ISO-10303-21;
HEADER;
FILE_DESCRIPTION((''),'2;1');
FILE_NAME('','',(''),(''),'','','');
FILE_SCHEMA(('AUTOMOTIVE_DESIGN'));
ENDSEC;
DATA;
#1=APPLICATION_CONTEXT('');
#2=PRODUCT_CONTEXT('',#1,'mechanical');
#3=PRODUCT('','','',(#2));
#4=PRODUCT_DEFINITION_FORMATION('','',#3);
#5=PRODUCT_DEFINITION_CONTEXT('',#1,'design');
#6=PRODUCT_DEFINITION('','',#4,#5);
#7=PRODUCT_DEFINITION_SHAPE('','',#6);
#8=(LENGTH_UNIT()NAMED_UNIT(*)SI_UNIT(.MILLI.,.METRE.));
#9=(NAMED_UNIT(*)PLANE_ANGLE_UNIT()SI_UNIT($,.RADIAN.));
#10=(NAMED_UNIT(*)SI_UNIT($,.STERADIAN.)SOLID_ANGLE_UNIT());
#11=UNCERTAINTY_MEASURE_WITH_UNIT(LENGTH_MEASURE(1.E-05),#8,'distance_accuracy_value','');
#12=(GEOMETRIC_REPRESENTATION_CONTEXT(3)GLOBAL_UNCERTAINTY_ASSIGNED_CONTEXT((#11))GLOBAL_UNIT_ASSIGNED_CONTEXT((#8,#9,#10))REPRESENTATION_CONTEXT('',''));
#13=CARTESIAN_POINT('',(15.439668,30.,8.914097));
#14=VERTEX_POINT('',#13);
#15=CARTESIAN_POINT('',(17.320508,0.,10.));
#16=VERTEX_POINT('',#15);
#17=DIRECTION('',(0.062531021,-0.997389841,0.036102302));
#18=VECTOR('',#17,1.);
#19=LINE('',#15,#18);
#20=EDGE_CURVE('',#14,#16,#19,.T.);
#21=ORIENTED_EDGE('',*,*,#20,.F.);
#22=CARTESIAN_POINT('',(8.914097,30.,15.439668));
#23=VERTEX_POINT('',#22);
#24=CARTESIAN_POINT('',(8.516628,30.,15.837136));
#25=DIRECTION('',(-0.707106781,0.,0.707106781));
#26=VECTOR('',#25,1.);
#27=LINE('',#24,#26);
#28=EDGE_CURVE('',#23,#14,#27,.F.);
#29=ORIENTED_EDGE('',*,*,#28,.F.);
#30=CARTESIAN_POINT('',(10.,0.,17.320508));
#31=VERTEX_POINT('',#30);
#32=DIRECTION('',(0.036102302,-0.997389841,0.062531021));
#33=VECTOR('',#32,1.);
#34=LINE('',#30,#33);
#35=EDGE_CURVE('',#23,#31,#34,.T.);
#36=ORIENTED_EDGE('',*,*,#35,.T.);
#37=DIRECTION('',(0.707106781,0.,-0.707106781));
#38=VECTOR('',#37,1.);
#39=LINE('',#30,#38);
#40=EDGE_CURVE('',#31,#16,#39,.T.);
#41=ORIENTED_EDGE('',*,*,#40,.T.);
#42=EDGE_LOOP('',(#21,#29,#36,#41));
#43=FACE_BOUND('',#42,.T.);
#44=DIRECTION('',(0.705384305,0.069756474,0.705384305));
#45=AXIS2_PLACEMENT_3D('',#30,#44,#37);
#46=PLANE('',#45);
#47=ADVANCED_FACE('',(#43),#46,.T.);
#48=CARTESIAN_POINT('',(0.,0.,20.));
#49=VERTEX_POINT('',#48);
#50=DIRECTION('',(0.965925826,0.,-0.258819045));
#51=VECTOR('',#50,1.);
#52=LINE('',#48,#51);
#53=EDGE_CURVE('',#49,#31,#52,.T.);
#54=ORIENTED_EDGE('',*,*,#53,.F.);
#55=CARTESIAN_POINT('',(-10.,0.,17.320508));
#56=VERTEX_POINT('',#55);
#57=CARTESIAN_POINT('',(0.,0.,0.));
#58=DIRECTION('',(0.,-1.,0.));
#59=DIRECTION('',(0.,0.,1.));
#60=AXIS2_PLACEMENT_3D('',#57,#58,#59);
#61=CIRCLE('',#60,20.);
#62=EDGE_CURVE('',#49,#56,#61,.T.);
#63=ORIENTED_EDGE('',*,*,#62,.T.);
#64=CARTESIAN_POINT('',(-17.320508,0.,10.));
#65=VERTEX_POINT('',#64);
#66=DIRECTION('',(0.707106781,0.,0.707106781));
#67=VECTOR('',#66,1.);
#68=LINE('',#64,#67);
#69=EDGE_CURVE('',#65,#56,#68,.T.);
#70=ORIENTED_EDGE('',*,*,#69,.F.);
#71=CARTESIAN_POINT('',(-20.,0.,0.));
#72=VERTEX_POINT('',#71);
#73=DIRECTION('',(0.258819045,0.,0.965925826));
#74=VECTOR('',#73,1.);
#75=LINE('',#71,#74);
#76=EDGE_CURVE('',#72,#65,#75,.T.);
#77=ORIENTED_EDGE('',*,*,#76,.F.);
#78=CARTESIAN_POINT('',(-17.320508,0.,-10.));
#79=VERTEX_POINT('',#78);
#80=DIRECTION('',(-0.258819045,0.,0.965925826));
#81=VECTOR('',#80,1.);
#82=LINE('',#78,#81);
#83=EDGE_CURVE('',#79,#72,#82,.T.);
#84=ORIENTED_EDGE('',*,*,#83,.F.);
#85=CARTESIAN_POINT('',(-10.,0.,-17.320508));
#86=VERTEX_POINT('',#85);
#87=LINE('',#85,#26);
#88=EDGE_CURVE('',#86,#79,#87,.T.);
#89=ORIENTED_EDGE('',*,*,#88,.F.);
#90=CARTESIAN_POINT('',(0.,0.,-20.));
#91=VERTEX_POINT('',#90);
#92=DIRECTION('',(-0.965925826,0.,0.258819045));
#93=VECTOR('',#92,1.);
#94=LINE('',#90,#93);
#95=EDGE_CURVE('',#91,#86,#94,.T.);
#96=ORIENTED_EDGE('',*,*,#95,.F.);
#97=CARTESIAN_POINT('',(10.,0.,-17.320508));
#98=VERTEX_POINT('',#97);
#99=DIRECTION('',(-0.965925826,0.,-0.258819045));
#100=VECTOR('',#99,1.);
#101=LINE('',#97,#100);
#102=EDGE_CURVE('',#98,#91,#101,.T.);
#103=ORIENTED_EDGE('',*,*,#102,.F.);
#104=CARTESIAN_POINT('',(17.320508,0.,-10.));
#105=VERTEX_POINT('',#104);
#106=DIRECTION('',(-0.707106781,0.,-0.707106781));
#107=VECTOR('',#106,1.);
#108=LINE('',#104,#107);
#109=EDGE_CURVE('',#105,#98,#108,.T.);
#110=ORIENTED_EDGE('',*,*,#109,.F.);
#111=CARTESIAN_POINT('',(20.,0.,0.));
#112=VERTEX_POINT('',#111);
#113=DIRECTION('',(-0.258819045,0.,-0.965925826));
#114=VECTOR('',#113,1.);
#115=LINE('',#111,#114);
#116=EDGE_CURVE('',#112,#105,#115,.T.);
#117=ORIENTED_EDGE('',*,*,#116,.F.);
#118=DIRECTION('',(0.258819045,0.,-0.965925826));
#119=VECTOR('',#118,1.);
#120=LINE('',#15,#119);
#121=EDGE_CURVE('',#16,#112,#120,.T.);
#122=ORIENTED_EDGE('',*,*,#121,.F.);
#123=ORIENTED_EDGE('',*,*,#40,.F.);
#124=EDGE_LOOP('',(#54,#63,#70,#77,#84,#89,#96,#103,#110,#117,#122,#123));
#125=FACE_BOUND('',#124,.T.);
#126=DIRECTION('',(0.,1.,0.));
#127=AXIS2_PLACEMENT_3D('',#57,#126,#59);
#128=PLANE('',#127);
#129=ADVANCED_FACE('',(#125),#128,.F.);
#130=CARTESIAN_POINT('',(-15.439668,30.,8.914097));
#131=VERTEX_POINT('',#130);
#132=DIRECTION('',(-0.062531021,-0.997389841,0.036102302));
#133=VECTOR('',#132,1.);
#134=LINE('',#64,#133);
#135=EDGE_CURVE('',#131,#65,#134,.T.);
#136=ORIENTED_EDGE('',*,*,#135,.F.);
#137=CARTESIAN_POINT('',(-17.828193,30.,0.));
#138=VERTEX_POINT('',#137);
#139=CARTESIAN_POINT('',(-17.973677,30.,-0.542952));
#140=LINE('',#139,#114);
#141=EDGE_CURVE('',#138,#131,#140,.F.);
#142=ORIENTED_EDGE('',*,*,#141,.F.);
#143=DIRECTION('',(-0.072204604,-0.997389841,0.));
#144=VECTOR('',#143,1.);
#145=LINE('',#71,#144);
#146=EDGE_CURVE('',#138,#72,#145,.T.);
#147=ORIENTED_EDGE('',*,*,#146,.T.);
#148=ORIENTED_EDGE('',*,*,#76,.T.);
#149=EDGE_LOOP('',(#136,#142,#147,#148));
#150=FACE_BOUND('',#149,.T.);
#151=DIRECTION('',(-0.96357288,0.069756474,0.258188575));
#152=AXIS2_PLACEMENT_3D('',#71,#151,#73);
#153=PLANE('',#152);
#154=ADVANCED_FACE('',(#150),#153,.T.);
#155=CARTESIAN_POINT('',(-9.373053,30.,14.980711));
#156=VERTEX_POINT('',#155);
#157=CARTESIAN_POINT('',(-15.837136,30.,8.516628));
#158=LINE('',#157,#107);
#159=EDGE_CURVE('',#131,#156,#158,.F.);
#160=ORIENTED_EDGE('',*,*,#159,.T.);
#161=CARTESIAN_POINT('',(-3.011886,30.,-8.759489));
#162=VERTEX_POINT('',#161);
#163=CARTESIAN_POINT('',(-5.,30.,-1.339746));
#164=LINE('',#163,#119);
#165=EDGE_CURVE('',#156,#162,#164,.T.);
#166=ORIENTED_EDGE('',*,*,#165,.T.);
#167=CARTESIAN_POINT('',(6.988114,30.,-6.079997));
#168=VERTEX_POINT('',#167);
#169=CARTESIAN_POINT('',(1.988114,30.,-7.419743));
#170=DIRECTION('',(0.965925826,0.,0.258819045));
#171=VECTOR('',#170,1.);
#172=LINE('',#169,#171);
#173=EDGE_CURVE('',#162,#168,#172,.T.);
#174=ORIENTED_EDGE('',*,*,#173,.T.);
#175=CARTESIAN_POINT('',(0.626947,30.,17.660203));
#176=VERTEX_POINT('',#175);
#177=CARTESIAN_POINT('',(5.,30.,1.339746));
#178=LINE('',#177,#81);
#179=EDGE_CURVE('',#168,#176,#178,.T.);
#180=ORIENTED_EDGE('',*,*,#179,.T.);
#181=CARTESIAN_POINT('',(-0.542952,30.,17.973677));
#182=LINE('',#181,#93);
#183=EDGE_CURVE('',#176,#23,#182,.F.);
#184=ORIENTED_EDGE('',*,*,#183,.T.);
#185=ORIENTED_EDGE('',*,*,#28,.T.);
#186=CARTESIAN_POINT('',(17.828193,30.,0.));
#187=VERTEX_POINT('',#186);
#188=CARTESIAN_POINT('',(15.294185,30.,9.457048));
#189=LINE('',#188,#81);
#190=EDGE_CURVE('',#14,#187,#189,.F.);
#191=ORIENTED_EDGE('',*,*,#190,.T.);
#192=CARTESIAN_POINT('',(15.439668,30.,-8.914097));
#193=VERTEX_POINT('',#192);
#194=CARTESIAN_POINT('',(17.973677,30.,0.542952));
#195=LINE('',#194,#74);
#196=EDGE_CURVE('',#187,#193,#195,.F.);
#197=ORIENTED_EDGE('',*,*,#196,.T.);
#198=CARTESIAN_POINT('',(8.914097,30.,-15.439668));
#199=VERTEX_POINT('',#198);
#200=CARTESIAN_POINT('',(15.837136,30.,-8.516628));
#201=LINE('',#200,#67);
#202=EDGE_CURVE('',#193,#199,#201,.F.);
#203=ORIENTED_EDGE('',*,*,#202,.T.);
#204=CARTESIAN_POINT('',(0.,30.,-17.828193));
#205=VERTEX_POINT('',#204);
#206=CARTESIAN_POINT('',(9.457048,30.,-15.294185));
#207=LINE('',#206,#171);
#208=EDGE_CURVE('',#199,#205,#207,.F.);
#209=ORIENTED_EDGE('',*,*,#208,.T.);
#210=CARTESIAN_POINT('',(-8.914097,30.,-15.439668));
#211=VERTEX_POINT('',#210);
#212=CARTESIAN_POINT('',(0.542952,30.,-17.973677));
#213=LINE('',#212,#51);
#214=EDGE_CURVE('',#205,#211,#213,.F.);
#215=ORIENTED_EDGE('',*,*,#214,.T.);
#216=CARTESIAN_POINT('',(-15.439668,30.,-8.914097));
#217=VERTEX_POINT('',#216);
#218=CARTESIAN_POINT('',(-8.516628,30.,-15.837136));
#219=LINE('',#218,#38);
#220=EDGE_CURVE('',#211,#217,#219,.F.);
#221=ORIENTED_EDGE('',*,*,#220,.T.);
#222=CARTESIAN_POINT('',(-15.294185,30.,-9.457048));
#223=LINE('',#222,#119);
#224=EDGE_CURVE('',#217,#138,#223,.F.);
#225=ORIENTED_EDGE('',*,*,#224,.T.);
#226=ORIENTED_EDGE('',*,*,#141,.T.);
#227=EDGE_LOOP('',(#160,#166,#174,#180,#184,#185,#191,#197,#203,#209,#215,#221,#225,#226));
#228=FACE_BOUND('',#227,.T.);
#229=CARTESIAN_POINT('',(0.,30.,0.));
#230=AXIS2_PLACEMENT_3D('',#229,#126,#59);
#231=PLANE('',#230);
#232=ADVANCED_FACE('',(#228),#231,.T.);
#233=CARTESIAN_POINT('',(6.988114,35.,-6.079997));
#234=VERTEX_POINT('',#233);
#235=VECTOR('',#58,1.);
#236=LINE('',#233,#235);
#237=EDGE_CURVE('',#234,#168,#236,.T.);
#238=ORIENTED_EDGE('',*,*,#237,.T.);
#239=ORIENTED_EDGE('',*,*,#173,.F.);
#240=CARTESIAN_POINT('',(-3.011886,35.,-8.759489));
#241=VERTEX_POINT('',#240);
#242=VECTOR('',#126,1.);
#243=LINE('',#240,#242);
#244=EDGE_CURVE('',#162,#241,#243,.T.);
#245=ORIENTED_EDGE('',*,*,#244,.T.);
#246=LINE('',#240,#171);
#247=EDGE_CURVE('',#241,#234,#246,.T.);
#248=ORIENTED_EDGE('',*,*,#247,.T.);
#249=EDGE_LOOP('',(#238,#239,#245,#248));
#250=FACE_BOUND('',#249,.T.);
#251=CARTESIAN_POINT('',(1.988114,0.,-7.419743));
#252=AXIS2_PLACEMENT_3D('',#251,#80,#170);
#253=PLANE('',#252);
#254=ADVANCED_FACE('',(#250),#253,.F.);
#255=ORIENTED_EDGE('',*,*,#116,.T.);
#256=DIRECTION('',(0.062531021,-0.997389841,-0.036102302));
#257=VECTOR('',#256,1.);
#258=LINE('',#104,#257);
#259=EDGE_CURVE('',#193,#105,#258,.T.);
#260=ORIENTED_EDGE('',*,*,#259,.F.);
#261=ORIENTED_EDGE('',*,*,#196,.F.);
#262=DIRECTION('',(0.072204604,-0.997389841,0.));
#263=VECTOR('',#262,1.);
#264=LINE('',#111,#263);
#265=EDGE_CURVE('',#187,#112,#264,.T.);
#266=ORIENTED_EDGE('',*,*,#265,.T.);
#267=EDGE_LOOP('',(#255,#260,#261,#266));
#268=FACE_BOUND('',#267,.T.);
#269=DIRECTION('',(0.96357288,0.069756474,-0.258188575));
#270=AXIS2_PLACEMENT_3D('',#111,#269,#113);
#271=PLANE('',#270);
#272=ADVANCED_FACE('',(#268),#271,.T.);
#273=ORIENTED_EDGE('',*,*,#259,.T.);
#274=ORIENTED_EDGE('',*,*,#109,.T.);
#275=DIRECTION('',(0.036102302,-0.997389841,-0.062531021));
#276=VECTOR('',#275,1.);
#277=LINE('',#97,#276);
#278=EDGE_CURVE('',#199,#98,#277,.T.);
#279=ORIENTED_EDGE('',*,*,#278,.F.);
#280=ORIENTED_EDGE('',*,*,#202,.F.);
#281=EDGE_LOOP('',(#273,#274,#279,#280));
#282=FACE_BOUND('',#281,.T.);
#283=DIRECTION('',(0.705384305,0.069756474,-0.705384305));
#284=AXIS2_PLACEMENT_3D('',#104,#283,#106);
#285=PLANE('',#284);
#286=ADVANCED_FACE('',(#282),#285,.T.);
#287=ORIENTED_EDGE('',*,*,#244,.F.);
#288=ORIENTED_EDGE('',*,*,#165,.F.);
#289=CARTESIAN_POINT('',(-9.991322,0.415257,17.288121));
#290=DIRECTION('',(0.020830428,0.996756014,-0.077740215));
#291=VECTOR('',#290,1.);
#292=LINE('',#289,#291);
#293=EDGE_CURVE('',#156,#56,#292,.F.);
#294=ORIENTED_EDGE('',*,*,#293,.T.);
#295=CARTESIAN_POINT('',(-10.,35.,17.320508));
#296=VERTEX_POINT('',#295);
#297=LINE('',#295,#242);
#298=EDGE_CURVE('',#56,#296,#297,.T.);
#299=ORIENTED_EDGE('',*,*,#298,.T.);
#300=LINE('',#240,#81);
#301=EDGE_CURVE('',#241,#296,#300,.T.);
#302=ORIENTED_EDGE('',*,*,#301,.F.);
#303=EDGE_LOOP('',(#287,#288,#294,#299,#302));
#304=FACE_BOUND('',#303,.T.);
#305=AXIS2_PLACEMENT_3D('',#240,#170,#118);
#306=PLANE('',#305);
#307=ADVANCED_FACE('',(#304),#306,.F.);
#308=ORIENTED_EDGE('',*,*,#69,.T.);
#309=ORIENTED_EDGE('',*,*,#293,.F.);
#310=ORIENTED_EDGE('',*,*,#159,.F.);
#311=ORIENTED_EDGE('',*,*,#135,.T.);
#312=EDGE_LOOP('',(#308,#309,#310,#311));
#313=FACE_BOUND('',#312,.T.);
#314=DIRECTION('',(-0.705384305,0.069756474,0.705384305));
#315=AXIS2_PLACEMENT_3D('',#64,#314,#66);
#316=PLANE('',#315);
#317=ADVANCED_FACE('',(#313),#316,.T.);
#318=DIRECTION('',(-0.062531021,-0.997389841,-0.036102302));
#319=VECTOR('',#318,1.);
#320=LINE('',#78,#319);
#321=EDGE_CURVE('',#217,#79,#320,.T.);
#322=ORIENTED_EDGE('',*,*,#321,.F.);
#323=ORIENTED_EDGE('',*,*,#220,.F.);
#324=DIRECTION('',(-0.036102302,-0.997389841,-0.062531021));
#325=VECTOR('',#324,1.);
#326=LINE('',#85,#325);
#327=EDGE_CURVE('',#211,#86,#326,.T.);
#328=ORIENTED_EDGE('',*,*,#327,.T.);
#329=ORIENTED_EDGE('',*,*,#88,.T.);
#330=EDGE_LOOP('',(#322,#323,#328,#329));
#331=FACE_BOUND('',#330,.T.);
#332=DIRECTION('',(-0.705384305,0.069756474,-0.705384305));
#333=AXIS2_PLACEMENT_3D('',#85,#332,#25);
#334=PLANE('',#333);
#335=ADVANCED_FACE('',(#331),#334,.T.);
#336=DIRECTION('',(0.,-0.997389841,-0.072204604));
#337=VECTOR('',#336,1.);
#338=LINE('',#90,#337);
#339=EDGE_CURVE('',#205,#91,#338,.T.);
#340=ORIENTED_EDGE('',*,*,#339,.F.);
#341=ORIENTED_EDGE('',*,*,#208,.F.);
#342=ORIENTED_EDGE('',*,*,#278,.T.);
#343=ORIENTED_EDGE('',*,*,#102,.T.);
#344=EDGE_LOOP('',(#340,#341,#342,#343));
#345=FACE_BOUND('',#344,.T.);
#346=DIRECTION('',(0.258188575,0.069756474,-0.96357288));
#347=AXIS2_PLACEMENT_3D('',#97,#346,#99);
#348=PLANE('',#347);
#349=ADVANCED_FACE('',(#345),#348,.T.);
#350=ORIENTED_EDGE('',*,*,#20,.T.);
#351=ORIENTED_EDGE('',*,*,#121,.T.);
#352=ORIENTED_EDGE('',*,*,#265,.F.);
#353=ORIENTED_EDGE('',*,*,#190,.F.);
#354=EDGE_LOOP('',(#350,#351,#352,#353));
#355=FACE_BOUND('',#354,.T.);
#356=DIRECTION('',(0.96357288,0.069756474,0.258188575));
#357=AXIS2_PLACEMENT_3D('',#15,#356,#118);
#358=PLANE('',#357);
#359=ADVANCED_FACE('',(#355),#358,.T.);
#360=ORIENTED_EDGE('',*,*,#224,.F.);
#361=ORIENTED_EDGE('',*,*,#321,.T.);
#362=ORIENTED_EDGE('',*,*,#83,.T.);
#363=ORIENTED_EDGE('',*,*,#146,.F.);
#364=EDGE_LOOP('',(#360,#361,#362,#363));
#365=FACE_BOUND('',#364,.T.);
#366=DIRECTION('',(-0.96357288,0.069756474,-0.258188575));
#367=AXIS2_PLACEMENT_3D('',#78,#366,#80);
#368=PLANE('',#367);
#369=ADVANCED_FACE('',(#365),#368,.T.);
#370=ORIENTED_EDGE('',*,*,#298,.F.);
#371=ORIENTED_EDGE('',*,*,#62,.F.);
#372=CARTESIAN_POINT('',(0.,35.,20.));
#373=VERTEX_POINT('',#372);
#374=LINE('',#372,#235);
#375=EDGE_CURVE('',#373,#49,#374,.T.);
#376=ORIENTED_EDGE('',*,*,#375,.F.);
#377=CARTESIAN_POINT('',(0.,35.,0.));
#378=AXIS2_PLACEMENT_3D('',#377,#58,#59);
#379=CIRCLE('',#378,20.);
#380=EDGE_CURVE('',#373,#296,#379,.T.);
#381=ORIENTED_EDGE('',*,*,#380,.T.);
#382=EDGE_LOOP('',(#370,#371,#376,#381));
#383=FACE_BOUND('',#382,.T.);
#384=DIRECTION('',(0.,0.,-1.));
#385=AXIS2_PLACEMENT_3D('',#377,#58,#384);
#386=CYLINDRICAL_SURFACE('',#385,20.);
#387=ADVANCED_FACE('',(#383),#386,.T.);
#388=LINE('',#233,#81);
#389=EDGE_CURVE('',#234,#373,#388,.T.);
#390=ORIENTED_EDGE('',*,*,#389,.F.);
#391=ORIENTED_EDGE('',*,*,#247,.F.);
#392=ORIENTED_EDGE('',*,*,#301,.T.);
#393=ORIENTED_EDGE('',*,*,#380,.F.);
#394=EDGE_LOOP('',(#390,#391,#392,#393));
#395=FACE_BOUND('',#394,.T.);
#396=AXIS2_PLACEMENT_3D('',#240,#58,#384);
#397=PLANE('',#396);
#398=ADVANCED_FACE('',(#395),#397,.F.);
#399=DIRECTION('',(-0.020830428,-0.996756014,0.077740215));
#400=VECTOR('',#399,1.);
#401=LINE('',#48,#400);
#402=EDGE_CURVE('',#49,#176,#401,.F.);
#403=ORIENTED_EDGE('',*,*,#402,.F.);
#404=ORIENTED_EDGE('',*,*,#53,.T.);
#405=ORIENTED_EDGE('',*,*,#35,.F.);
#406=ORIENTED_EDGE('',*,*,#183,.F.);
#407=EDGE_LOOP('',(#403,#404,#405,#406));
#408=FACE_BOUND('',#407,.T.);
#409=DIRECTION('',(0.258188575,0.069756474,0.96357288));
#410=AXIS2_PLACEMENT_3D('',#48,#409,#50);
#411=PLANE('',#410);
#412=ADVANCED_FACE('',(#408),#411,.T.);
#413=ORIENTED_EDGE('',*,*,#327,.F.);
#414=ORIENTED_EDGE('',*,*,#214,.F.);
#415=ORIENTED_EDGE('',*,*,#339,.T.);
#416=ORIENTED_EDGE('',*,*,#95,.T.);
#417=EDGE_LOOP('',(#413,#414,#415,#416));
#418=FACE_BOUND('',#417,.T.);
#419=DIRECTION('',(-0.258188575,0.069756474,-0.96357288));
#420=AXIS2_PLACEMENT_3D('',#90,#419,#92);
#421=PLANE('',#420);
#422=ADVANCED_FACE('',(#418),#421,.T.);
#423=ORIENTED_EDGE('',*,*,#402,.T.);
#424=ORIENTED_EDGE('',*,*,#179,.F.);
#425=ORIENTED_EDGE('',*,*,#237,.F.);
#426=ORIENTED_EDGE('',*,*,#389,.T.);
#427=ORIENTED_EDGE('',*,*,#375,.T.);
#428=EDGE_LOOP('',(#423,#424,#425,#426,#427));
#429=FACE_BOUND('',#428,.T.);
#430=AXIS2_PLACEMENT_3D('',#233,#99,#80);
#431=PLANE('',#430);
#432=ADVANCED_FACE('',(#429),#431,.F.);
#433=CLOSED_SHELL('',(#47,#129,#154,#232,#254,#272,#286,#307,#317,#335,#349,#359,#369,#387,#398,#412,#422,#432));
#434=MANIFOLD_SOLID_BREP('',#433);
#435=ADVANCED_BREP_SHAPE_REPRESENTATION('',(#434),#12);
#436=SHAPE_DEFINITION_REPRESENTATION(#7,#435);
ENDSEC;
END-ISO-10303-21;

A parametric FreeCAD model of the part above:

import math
import FreeCAD as App
import Part
import Sketcher
from FreeCAD import Vector
Q = App.Units.Quantity

doc = App.newDocument("Part")
body = doc.addObject("PartDesign::Body", "Body")

# Sketch on XZ plane
sketch1 = body.newObject("Sketcher::SketchObject", "Sketch")
sketch1.AttachmentSupport = (doc.getObject("XZ_Plane"), [""])
sketch1.MapMode = "FlatFace"
sketch1.addGeometry([
    Part.LineSegment(Vector(-20, 0, 0), Vector(-17, 10, 0)),  # 0
    Part.LineSegment(Vector(-17, 10, 0), Vector(-10, 17, 0)),  # 1
    Part.LineSegment(Vector(-10, 17, 0), Vector(0, 20, 0)),  # 2
    Part.LineSegment(Vector(0, 20, 0), Vector(10, 17, 0)),  # 3
    Part.LineSegment(Vector(10, 17, 0), Vector(17, 10, 0)),  # 4
    Part.LineSegment(Vector(17, 10, 0), Vector(20, 0, 0)),  # 5
    Part.LineSegment(Vector(20, 0, 0), Vector(17, -10, 0)),  # 6
    Part.LineSegment(Vector(17, -10, 0), Vector(10, -17, 0)),  # 7
    Part.LineSegment(Vector(10, -17, 0), Vector(0, -20, 0)),  # 8
    Part.LineSegment(Vector(0, -20, 0), Vector(-10, -17, 0)),  # 9
    Part.LineSegment(Vector(-10, -17, 0), Vector(-17, -10, 0)),  # 10
    Part.LineSegment(Vector(-17, -10, 0), Vector(-20, 0, 0)),  # 11
], False)
sketch1.addConstraint([
    Sketcher.Constraint("Coincident", 0, 2, 1, 1),
    Sketcher.Constraint("Coincident", 1, 2, 2, 1),
    Sketcher.Constraint("Coincident", 2, 2, 3, 1),
    Sketcher.Constraint("Coincident", 3, 2, 4, 1),
    Sketcher.Constraint("Coincident", 4, 2, 5, 1),
    Sketcher.Constraint("Coincident", 5, 2, 6, 1),
    Sketcher.Constraint("Coincident", 6, 2, 7, 1),
    Sketcher.Constraint("Coincident", 7, 2, 8, 1),
    Sketcher.Constraint("Coincident", 8, 2, 9, 1),
    Sketcher.Constraint("Coincident", 9, 2, 10, 1),
    Sketcher.Constraint("Coincident", 10, 2, 11, 1),
    Sketcher.Constraint("Coincident", 11, 2, 0, 1),
    Sketcher.Constraint("Symmetric", 0, 2, 6, 2, -1, 1),
    Sketcher.Constraint("Symmetric", 1, 2, 7, 2, -1, 1),
    Sketcher.Constraint("Symmetric", 2, 2, 8, 2, -1, 1),
    Sketcher.Constraint("Symmetric", 3, 2, 9, 2, -1, 1),
    Sketcher.Constraint("Symmetric", 4, 2, 10, 2, -1, 1),
    Sketcher.Constraint("Symmetric", 5, 2, 11, 2, -1, 1),
    Sketcher.Constraint("Symmetric", 1, 2, 3, 2, -2),
    Sketcher.Constraint("Symmetric", 0, 2, 4, 2, -2),
    Sketcher.Constraint("PointOnObject", 2, 2, -2),
    Sketcher.Constraint("PointOnObject", 5, 2, -1),
    Sketcher.Constraint("Perpendicular", 0, 3),
    Sketcher.Constraint("Perpendicular", 1, 4),
    Sketcher.Constraint("Equal", 0, 1),
    Sketcher.Constraint("Equal", 1, 2),
    Sketcher.Constraint("Angle", 0, Q("75 deg")),
    Sketcher.Constraint("DistanceY", -1, 1, 0, 2, Q("10 mm")),
])
pad1 = body.newObject("PartDesign::Pad", "Pad")
pad1.Profile = sketch1
pad1.Length = 30
pad1.Reversed = True
pad1.TaperAngle = -4
body2 = doc.addObject("PartDesign::Body", "Body001")

# Sketch on XZ plane
sketch2 = body2.newObject("Sketcher::SketchObject", "Sketch001")
sketch2.AttachmentSupport = (doc.getObject("XZ_Plane001"), [""])
sketch2.MapMode = "FlatFace"
sketch2.addGeometry([
    Part.LineSegment(Vector(-10, 17, 0), Vector(0, 20, 0)),
    Part.ArcOfCircle(Part.Circle(Vector(0, 0, 0), Vector(0, 0, 1), 20), math.radians(90), math.radians(120)),
], False)
sketch2.addConstraint([
    Sketcher.Constraint("Coincident", 0, 1, 1, 2),
    Sketcher.Constraint("Coincident", 1, 1, 0, 2),
    Sketcher.Constraint("Coincident", 1, 3, -1, 1),
    Sketcher.Constraint("PointOnObject", 1, 1, -2),
    Sketcher.Constraint("Radius", 1, Q("20 mm")),
    Sketcher.Constraint("Angle", 0, Q("15 deg")),
])
pad2 = body2.newObject("PartDesign::Pad", "Pad001")
pad2.Profile = sketch2
pad2.Length = 35
pad2.Reversed = True
body.AllowCompound = True
doc.recompute()

boolean = body.newObject("PartDesign::Boolean", "Boolean")
boolean.Type = "Fuse"
boolean.addObjects([body2])

# Sketch on an angled plane
sketch3 = body.newObject("Sketcher::SketchObject", "Sketch002")
sketch3.Placement = App.Placement(Vector(-5, 0, 18.660254), App.Rotation(Vector(-0.965925826, 0, -0.258819045), Vector(0, 0.999999999, 0), Vector(0.258819045, 0, -0.965925826), "ZXY"))
sketch3.addGeometry([
    Part.LineSegment(Vector(-5, 35, 0), Vector(-5, 0, 0)),
    Part.LineSegment(Vector(-5, 0, 0), Vector(5, 0, 0)),
    Part.LineSegment(Vector(5, 0, 0), Vector(5, 35, 0)),
    Part.LineSegment(Vector(5, 35, 0), Vector(-5, 35, 0)),
], False)
sketch3.addConstraint([
    Sketcher.Constraint("Coincident", 0, 2, 1, 1),
    Sketcher.Constraint("Coincident", 1, 2, 2, 1),
    Sketcher.Constraint("Coincident", 2, 2, 3, 1),
    Sketcher.Constraint("Coincident", 3, 2, 0, 1),
    Sketcher.Constraint("Vertical", 0),
    Sketcher.Constraint("Horizontal", 1),
    Sketcher.Constraint("Vertical", 2),
    Sketcher.Constraint("Horizontal", 3),
    Sketcher.Constraint("Symmetric", 0, 2, 1, 2, -1, 1),
    Sketcher.Constraint("DistanceY", 0, 2, 0, 1, Q("35 mm")),
    Sketcher.Constraint("DistanceX", 1, 1, 1, 2, Q("10.352762 mm")),
])
pad3 = body.newObject("PartDesign::Pad", "Pad002")
pad3.Profile = sketch3
pad3.Length = 27

doc.recompute()
